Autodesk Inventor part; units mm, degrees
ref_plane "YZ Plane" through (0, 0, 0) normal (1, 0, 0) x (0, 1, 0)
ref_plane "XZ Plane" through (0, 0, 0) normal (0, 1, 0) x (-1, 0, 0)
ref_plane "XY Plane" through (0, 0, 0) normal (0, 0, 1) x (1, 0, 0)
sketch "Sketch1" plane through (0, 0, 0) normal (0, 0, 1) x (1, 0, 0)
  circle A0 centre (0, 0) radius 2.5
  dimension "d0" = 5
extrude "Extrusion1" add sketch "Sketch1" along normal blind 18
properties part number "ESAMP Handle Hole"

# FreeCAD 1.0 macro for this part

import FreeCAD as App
import Part
import Sketcher

V = App.Vector

doc = App.newDocument("Part")
params = doc.addObject("Spreadsheet::Sheet", "Params")
for row, (alias, value) in enumerate([
    ("sketch1_diameter", "5 mm"),
    ("pad1_length", "18 mm"),
], start=1):
    params.set(f"A{row}", alias)
    params.set(f"B{row}", "=" + value)
    params.setAlias(f"B{row}", alias)

body = doc.addObject("PartDesign::Body", "Body")

# Sketch on XY plane
sketch1 = body.newObject("Sketcher::SketchObject", "Sketch")
sketch1.AttachmentSupport = (doc.getObject("XY_Plane"), [""])
sketch1.MapMode = "FlatFace"
sketch1.addGeometry(Part.Circle(V(0, 0, 0), V(0, 0, 1), 2.5), False)
sketch1.addConstraint(Sketcher.Constraint("Coincident", 0, 3, -1, 1))
sketch1.addConstraint(Sketcher.Constraint("Diameter", 0, 5.0))
sketch1.setExpression("Constraints[1]", "Params.sketch1_diameter")
pad1 = body.newObject("PartDesign::Pad", "Pad")
pad1.Profile = sketch1
pad1.setExpression("Length", "Params.pad1_length")

doc.recompute()
